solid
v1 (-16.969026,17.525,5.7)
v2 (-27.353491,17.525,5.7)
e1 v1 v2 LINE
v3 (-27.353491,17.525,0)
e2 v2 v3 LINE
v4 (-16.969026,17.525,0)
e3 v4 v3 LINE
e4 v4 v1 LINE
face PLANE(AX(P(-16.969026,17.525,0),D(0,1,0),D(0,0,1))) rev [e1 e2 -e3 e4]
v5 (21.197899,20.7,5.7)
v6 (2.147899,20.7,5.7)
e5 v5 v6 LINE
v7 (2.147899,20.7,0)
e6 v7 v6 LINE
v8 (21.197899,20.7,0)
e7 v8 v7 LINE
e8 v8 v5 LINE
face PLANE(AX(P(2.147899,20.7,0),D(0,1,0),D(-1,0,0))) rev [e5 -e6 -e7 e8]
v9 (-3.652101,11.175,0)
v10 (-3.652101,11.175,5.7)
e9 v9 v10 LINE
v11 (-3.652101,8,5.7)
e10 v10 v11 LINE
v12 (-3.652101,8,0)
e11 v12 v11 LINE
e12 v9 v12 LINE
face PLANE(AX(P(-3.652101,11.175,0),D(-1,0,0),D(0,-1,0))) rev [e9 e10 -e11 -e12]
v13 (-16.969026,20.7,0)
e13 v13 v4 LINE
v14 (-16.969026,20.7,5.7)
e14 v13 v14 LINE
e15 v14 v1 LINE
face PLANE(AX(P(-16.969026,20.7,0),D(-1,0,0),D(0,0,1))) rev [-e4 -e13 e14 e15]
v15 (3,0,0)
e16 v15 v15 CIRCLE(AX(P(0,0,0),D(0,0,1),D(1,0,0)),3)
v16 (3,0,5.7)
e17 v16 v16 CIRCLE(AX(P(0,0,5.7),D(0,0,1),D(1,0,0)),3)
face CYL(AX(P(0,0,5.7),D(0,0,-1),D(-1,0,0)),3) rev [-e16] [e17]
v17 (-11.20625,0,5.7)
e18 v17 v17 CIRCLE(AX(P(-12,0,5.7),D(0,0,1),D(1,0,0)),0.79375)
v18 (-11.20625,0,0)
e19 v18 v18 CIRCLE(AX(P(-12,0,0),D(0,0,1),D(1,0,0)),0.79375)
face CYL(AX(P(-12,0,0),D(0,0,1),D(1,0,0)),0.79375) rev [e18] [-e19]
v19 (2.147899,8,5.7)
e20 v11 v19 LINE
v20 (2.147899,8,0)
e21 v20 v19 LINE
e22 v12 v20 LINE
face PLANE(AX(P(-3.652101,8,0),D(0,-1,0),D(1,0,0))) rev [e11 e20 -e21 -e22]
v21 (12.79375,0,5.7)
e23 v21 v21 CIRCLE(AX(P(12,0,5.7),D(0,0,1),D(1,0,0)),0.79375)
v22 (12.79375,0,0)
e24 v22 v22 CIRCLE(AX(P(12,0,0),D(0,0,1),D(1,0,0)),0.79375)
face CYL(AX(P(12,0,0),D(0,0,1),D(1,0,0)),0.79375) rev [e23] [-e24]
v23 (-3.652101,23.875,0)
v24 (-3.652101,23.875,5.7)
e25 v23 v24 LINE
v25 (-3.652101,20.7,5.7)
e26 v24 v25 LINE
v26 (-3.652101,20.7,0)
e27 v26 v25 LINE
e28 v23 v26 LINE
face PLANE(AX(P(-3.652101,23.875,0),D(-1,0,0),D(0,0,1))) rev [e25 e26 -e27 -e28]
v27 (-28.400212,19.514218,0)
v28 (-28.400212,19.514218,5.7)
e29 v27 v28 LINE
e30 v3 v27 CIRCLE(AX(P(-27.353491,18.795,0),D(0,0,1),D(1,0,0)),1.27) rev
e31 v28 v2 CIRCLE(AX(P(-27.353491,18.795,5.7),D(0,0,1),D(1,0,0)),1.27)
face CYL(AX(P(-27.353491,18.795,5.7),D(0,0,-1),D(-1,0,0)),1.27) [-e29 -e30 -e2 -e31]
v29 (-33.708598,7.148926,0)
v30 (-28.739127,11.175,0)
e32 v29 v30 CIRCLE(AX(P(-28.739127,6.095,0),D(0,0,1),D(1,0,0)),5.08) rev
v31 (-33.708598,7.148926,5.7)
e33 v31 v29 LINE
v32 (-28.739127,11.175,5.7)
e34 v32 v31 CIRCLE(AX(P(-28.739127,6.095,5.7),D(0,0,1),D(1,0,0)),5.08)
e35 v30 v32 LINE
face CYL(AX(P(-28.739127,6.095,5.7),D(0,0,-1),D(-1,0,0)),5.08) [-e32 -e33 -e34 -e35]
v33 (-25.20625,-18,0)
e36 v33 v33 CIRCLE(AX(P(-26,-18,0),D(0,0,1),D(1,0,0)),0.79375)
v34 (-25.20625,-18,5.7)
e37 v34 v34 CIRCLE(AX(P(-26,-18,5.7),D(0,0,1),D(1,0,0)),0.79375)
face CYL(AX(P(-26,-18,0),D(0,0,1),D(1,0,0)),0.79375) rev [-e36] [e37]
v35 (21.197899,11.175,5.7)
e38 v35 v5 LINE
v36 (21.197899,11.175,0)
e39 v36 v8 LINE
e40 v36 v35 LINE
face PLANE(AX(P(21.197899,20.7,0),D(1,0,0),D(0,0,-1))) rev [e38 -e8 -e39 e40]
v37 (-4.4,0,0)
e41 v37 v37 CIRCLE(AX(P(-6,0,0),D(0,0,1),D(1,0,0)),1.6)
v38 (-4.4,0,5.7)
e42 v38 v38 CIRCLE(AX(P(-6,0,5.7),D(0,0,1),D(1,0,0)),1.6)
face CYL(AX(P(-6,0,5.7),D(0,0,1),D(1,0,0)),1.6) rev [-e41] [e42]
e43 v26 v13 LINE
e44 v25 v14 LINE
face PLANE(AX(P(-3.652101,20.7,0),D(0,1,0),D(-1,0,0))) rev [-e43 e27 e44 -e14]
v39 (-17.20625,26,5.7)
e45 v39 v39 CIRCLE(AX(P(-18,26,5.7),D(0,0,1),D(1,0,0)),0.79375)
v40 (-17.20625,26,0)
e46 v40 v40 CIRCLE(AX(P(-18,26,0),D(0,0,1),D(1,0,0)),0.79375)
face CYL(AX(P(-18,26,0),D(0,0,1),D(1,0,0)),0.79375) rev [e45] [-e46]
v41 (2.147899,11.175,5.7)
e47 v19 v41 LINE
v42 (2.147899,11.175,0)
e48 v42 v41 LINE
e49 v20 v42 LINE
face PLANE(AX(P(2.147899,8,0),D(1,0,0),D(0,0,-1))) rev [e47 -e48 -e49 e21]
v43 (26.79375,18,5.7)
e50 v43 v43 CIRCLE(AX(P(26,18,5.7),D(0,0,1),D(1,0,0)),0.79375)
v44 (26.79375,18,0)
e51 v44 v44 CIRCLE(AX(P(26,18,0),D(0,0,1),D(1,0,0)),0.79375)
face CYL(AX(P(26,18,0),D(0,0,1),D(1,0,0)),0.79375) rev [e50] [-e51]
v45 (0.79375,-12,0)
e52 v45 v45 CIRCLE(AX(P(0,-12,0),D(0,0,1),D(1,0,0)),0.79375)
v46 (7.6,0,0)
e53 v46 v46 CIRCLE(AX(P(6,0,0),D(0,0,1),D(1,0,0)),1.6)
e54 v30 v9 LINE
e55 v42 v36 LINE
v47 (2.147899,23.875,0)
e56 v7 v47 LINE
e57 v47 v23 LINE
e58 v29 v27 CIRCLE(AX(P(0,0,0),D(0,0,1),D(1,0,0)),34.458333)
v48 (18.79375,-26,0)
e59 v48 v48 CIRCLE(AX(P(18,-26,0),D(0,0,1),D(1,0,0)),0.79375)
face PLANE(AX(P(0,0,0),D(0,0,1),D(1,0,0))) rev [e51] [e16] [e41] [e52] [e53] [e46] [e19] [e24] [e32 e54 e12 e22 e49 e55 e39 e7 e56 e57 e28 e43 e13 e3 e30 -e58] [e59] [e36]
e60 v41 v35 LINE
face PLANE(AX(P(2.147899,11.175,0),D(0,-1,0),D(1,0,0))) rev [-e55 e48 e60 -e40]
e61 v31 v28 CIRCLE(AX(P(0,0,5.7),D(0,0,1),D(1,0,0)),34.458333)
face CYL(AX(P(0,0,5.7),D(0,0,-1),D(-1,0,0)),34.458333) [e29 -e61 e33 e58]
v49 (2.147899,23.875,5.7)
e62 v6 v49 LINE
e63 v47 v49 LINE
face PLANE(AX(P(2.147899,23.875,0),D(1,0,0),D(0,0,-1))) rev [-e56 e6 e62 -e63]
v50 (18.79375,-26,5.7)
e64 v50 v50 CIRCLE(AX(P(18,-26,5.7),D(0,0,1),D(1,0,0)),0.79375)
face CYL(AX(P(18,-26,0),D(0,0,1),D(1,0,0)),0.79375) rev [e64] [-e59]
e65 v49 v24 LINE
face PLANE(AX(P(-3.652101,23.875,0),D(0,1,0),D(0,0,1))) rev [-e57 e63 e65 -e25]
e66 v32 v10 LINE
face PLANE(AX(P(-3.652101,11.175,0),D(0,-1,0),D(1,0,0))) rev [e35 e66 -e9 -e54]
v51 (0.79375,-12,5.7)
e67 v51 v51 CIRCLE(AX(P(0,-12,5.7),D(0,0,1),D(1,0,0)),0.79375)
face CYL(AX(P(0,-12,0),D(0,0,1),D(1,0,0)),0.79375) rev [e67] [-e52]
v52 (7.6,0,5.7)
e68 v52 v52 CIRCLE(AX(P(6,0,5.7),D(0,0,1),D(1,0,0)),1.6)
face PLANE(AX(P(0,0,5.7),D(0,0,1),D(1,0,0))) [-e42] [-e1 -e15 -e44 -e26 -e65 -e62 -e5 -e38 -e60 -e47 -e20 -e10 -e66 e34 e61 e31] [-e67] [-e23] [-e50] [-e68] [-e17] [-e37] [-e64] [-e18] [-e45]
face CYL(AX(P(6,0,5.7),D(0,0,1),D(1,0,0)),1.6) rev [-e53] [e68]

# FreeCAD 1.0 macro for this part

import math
import FreeCAD as App
import Part
import Sketcher

V = App.Vector
Q = App.Units.Quantity


def edges_at(feature, points):
    """Names of the edges that pass closest to the given points."""
    edges = feature.Shape.Edges
    near = lambda p: min(range(len(edges)), key=lambda i: edges[i].distToShape(Part.Vertex(*p))[0])
    return sorted({f"Edge{near(p) + 1}" for p in points})

doc = App.newDocument("Part")
body = doc.addObject("PartDesign::Body", "Body")

# Sketch on XY plane
sketch1 = body.newObject("Sketcher::SketchObject", "Sketch")
sketch1.AttachmentSupport = (doc.getObject("XY_Plane"), [""])
sketch1.MapMode = "FlatFace"
sketch1.addGeometry([
    Part.Circle(V(0, 0, 0), V(0, 0, 1), 34.5),
    Part.Circle(V(0, 0, 0), V(0, 0, 1), 3),
], False)
sketch1.addConstraint([
    Sketcher.Constraint("Coincident", 0, 3, -1, 1),
    Sketcher.Constraint("Coincident", 1, 3, -1, 1),
    Sketcher.Constraint("Diameter", 1, 6.0),
    Sketcher.Constraint("Diameter", 0, 68.916667),
])
pad1 = body.newObject("PartDesign::Pad", "Pad")
pad1.Profile = sketch1
pad1.Length = 5.7

# Sketch on XY plane
sketch2 = body.newObject("Sketcher::SketchObject", "Sketch001")
sketch2.AttachmentSupport = (doc.getObject("XY_Plane"), [""])
sketch2.MapMode = "FlatFace"
sketch2.AttachmentOffset = App.Placement(V(0, 0, 5.7), App.Rotation())
sketch2.addGeometry([
    Part.LineSegment(V(-32.6, 11.2, 0), V(-3.7, 11.2, 0)),  # 0
    Part.LineSegment(V(-3.7, 11.2, 0), V(-3.7, 8, 0)),  # 1
    Part.LineSegment(V(-3.7, 8, 0), V(2.1, 8, 0)),  # 2
    Part.LineSegment(V(2.1, 8, 0), V(2.1, 11.2, 0)),  # 3
    Part.LineSegment(V(2.1, 11.2, 0), V(21.2, 11.2, 0)),  # 4
    Part.LineSegment(V(21.2, 11.2, 0), V(21.2, 20.7, 0)),  # 5
    Part.LineSegment(V(21.2, 20.7, 0), V(2.1, 20.7, 0)),  # 6
    Part.LineSegment(V(2.1, 20.7, 0), V(2.1, 23.9, 0)),  # 7
    Part.LineSegment(V(2.1, 23.9, 0), V(-3.7, 23.9, 0)),  # 8
    Part.LineSegment(V(-3.7, 23.9, 0), V(-3.7, 20.7, 0)),  # 9
    Part.LineSegment(V(-3.7, 20.7, 0), V(-17, 20.7, 0)),  # 10
    Part.LineSegment(V(-17, 20.7, 0), V(-17, 17.5, 0)),  # 11
    Part.LineSegment(V(-17, 17.5, 0), V(-29.7, 17.5, 0)),  # 12
    Part.ArcOfCircle(Part.Circle(V(0, 0, 0), V(0, 0, 1), 34.5), math.radians(149.43), math.radians(161.08)),  # 13
], False)
sketch2.addConstraint([
    Sketcher.Constraint("Coincident", 0, 2, 1, 1),
    Sketcher.Constraint("Coincident", 1, 2, 2, 1),
    Sketcher.Constraint("Coincident", 2, 2, 3, 1),
    Sketcher.Constraint("Coincident", 3, 2, 4, 1),
    Sketcher.Constraint("Coincident", 4, 2, 5, 1),
    Sketcher.Constraint("Coincident", 5, 2, 6, 1),
    Sketcher.Constraint("Coincident", 6, 2, 7, 1),
    Sketcher.Constraint("Coincident", 7, 2, 8, 1),
    Sketcher.Constraint("Coincident", 8, 2, 9, 1),
    Sketcher.Constraint("Coincident", 9, 2, 10, 1),
    Sketcher.Constraint("Coincident", 10, 2, 11, 1),
    Sketcher.Constraint("Coincident", 11, 2, 12, 1),
    Sketcher.Constraint("Coincident", 12, 2, 13, 1),
    Sketcher.Constraint("Coincident", 13, 2, 0, 1),
    Sketcher.Constraint("Horizontal", 0),
    Sketcher.Constraint("Vertical", 1),
    Sketcher.Constraint("Horizontal", 2),
    Sketcher.Constraint("Vertical", 3),
    Sketcher.Constraint("Horizontal", 4),
    Sketcher.Constraint("Vertical", 5),
    Sketcher.Constraint("Horizontal", 6),
    Sketcher.Constraint("Vertical", 7),
    Sketcher.Constraint("Horizontal", 8),
    Sketcher.Constraint("Vertical", 9),
    Sketcher.Constraint("Horizontal", 10),
    Sketcher.Constraint("Vertical", 11),
    Sketcher.Constraint("Horizontal", 12),
    Sketcher.Constraint("Coincident", 13, 3, -1, 1),
    Sketcher.Constraint("Horizontal", 0, 2, 3, 2),
    Sketcher.Constraint("Horizontal", 6, 2, 9, 2),
    Sketcher.Constraint("Vertical", 3, 2, 6, 2),
    Sketcher.Constraint("Vertical", 1, 2, 8, 2),
    Sketcher.Constraint("Equal", 3, 7),
    Sketcher.Constraint("Equal", 9, 11),
    Sketcher.Constraint("DistanceX", 12, 2, 12, 1, Q("0.5 in")),
    Sketcher.Constraint("DistanceX", 4, 1, 4, 2, Q("0.75 in")),
    Sketcher.Constraint("DistanceY", 2, 2, 5, 2, Q("0.5 in")),
    Sketcher.Constraint("DistanceY", 1, 2, 1, 1, Q("0.125 in")),
    Sketcher.Constraint("DistanceX", 2, 1, 2, 2, 5.8),
    Sketcher.Constraint("Radius", 13, 34.458333),
    Sketcher.Constraint("DistanceX", 0, 1, 0, 2, 28.943851),
    Sketcher.Constraint("DistanceX", 0, 2, -1, 1, 3.652101),
])
pocket1 = body.newObject("PartDesign::Pocket", "Pocket")
pocket1.Profile = sketch2
pocket1.Type = "ThroughAll"
doc.recompute()

fillet = body.newObject("PartDesign::Fillet", "Fillet")
fillet.Base = (pocket1, edges_at(pocket1, [(-32.596, 11.175, 2.85)]))
fillet.Radius = Q("0.2 in")
doc.recompute()

fillet2 = body.newObject("PartDesign::Fillet", "Fillet001")
fillet2.Base = (fillet, edges_at(fillet, [(-29.669, 17.525, 2.85)]))
fillet2.Radius = Q("0.05 in")

# Sketch on XY plane
sketch3 = body.newObject("Sketcher::SketchObject", "Sketch002")
sketch3.AttachmentSupport = (doc.getObject("XY_Plane"), [""])
sketch3.MapMode = "FlatFace"
sketch3.AttachmentOffset = App.Placement(V(0, 0, 5.7), App.Rotation())
sketch3.addGeometry([
    Part.Circle(V(0, 12, 0), V(0, 0, 1), 0.8),  # 0
    Part.Circle(V(12, 0, 0), V(0, 0, 1), 0.8),  # 1
    Part.Circle(V(0, -12, 0), V(0, 0, 1), 0.8),  # 2
    Part.Circle(V(-12, 0, 0), V(0, 0, 1), 0.8),  # 3
    Part.Circle(V(-18, 26, 0), V(0, 0, 1), 0.8),  # 4
    Part.Circle(V(26, 18, 0), V(0, 0, 1), 0.8),  # 5
    Part.Circle(V(18, -26, 0), V(0, 0, 1), 0.8),  # 6
    Part.Circle(V(-26, -18, 0), V(0, 0, 1), 0.8),  # 7
], False)
sketch3.addConstraint([
    Sketcher.Constraint("Equal", 0, 1),
    Sketcher.Constraint("Equal", 1, 2),
    Sketcher.Constraint("Equal", 2, 3),
    Sketcher.Constraint("Equal", 3, 4),
    Sketcher.Constraint("Equal", 4, 5),
    Sketcher.Constraint("Equal", 5, 6),
    Sketcher.Constraint("Equal", 6, 7),
    Sketcher.Constraint("Symmetric", 0, 3, 2, 3, -1, 1),
    Sketcher.Constraint("Symmetric", 1, 3, 3, 3, -1, 1),
    Sketcher.Constraint("Symmetric", 4, 3, 6, 3, -1, 1),
    Sketcher.Constraint("Symmetric", 5, 3, 7, 3, -1, 1),
    Sketcher.Constraint("PointOnObject", 0, 3, -2),
    Sketcher.Constraint("PointOnObject", 1, 3, -1),
    Sketcher.Constraint("Diameter", 0, Q("0.0625 in")),
    Sketcher.Constraint("DistanceY", -1, 1, 0, 3, 12.0),
    Sketcher.Constraint("DistanceX", -1, 1, 1, 3, 12.0),
    Sketcher.Constraint("DistanceX", 4, 3, -1, 1, 18.0),
    Sketcher.Constraint("DistanceY", -1, 1, 4, 3, 26.0),
    Sketcher.Constraint("DistanceX", -1, 1, 5, 3, 26.0),
    Sketcher.Constraint("DistanceY", -1, 1, 5, 3, 18.0),
])
pocket2 = body.newObject("PartDesign::Pocket", "Pocket001")
pocket2.Profile = sketch3
pocket2.Type = "ThroughAll"

# Sketch on XY plane
sketch4 = body.newObject("Sketcher::SketchObject", "Sketch003")
sketch4.AttachmentSupport = (doc.getObject("XY_Plane"), [""])
sketch4.MapMode = "FlatFace"
sketch4.AttachmentOffset = App.Placement(V(0, 0, 5.7), App.Rotation())
sketch4.addGeometry([
    Part.Circle(V(-6, 0, 0), V(0, 0, 1), 1.6),
    Part.Circle(V(6, 0, 0), V(0, 0, 1), 1.6),
], False)
sketch4.addConstraint([
    Sketcher.Constraint("Equal", 0, 1),
    Sketcher.Constraint("Symmetric", 0, 3, 1, 3, -1, 1),
    Sketcher.Constraint("PointOnObject", 0, 3, -1),
    Sketcher.Constraint("Diameter", 0, 3.2),
    Sketcher.Constraint("DistanceX", 0, 3, -1, 1, 6.0),
])
doc.recompute()
hole = body.newObject("PartDesign::Hole", "Hole")
hole.Profile = sketch4
hole.ThreadType = "None"
hole.Diameter = 3.2
hole.DepthType = "Dimension"
hole.Depth = Q("0.5 in")
hole.DrillPoint = "Angled"
hole.DrillPointAngle = 118

doc.recompute()
